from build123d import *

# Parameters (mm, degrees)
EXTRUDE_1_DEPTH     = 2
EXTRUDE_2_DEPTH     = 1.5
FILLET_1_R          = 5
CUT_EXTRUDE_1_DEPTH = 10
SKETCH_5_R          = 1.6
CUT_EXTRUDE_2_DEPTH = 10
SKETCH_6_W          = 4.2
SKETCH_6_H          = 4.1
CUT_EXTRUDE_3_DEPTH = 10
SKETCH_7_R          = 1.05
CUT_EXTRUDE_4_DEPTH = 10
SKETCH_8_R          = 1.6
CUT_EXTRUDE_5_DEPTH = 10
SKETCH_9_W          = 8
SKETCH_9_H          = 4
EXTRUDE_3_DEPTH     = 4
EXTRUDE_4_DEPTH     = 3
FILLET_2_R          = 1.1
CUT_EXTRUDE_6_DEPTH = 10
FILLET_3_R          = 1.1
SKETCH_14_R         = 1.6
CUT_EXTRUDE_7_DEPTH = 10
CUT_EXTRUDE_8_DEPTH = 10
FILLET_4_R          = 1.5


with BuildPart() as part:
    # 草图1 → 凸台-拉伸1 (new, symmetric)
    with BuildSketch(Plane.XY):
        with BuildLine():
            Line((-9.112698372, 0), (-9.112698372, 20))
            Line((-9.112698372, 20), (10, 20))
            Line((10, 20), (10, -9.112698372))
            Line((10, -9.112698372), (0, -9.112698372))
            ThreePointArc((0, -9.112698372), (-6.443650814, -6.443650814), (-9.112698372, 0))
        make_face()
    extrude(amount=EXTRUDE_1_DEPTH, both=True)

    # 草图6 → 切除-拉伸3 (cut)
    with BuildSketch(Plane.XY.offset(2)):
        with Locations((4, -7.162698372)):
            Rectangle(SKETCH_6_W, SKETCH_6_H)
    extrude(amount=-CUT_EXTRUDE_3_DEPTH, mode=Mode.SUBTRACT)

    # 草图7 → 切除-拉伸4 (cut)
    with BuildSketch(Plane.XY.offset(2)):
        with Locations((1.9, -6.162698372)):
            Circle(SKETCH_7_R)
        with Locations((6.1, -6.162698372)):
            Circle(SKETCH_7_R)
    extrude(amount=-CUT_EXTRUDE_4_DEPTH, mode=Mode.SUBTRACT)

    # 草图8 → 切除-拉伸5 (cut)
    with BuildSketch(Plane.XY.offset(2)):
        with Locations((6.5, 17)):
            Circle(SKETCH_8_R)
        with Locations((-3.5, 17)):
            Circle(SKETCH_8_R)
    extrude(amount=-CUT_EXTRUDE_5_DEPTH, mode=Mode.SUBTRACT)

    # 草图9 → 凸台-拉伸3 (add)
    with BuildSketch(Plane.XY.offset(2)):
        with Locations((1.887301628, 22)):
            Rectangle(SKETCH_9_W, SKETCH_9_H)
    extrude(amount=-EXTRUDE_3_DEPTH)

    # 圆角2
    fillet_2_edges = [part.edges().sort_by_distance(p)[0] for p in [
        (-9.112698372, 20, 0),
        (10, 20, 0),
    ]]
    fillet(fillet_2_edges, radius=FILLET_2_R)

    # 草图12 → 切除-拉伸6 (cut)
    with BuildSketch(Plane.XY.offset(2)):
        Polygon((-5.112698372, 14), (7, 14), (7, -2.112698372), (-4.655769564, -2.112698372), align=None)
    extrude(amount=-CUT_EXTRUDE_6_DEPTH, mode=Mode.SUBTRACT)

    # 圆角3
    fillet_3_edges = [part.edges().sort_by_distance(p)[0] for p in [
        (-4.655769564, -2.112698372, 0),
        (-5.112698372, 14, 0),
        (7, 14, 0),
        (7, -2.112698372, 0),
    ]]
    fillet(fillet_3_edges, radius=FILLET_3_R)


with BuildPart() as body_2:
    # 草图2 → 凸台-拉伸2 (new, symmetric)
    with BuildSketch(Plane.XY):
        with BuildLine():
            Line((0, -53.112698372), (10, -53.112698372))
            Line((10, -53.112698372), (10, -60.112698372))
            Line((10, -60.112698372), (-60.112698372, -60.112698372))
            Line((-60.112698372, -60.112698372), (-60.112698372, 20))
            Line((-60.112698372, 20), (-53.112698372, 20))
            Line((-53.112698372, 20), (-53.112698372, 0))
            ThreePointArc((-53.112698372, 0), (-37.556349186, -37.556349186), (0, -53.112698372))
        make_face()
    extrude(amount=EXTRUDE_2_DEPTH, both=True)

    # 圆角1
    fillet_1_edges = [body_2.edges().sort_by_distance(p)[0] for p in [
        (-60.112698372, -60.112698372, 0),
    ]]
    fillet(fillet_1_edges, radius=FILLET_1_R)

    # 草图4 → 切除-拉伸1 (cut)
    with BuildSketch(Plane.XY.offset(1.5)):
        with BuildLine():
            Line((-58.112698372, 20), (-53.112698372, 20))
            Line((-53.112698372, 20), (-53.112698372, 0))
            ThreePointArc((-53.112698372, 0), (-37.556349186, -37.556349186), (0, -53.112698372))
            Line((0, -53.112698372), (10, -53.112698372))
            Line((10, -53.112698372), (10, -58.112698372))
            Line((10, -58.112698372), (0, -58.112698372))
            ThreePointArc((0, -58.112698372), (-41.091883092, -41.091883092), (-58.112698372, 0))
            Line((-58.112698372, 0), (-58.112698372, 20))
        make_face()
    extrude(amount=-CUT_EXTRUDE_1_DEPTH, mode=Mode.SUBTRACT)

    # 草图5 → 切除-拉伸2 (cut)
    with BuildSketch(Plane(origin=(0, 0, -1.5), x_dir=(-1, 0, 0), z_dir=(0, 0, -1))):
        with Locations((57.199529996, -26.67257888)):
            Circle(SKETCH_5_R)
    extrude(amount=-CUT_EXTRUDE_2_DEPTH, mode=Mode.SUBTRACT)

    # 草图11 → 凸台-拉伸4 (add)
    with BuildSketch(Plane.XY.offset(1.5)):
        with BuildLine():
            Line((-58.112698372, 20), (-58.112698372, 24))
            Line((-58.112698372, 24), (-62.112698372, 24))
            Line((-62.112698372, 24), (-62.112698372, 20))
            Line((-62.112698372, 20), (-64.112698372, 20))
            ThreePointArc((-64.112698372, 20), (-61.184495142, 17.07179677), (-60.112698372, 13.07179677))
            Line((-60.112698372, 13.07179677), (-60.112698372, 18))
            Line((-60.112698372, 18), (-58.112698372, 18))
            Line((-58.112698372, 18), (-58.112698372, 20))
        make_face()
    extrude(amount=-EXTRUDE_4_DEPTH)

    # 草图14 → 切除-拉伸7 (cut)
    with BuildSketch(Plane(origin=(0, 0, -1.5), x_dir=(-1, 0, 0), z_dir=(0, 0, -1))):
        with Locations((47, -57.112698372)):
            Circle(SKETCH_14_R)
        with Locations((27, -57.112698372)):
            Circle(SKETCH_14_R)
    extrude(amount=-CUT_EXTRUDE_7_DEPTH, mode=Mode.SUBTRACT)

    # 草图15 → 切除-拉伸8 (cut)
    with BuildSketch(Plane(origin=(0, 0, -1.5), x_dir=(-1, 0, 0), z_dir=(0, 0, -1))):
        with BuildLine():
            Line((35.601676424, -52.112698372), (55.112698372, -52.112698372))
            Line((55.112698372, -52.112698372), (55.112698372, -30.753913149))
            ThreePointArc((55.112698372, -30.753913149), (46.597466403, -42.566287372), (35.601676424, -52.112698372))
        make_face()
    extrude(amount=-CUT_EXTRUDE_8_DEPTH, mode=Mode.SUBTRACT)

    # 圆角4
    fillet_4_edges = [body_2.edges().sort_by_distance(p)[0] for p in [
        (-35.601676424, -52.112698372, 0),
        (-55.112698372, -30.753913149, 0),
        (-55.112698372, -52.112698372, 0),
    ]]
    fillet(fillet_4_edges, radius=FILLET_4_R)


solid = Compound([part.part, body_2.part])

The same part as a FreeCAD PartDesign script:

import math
import FreeCAD as App
import Part
import Sketcher

V = App.Vector
Q = App.Units.Quantity


def edges_at(feature, points):
    """Names of the edges that pass closest to the given points."""
    edges = feature.Shape.Edges
    near = lambda p: min(range(len(edges)), key=lambda i: edges[i].distToShape(Part.Vertex(*p))[0])
    return sorted({f"Edge{near(p) + 1}" for p in points})


def add_polygon(sketch, points):
    """Adds a closed chain of lines whose ends are joined by coincident constraints."""
    first, n = sketch.GeometryCount, len(points)
    for a, b in zip(points, points[1:] + points[:1]):
        sketch.addGeometry(Part.LineSegment(App.Vector(*a, 0), App.Vector(*b, 0)), False)
    for i in range(n):
        sketch.addConstraint(Sketcher.Constraint("Coincident", first + i, 2, first + (i + 1) % n, 1))

doc = App.newDocument("Part")
body = doc.addObject("PartDesign::Body", "Body")

sketch1 = body.newObject("Sketcher::SketchObject", "Sketch")
sketch1.AttachmentSupport = (doc.getObject("XY_Plane"), [""])
sketch1.MapMode = "FlatFace"
sketch1.addGeometry([
    Part.LineSegment(V(-9.112698, 20, 0), V(-9.112698, 0, 0)),
    Part.ArcOfCircle(Part.Circle(V(0, 0, 0), V(0, 0, 1), 9.112698), math.radians(180), math.radians(270)),
    Part.LineSegment(V(0, -9.112698, 0), V(10, -9.112698, 0)),
    Part.LineSegment(V(10, -9.112698, 0), V(10, 20, 0)),
    Part.LineSegment(V(10, 20, 0), V(-9.112698, 20, 0)),
], False)
sketch1.addConstraint([
    Sketcher.Constraint("Tangent", 0, 2, 1, 1),
    Sketcher.Constraint("Tangent", 1, 2, 2, 1),
    Sketcher.Constraint("Coincident", 2, 2, 3, 1),
    Sketcher.Constraint("Coincident", 3, 2, 4, 1),
    Sketcher.Constraint("Coincident", 4, 2, 0, 1),
    Sketcher.Constraint("Vertical", 0),
    Sketcher.Constraint("Horizontal", 2),
    Sketcher.Constraint("Vertical", 3),
    Sketcher.Constraint("Horizontal", 4),
    Sketcher.Constraint("Coincident", 1, 3, -1, 1),
    Sketcher.Constraint("DistanceX", 2, 1, 2, 2, Q("10 mm")),
    Sketcher.Constraint("DistanceY", 0, 2, 0, 1, Q("20 mm")),
    Sketcher.Constraint("Radius", 1, Q("9.112698 mm")),
])
pad1 = body.newObject("PartDesign::Pad", "Pad")
pad1.Profile = sketch1
pad1.Length = 4
pad1.Midplane = True

sketch2 = body.newObject("Sketcher::SketchObject", "Sketch001")
sketch2.AttachmentSupport = (doc.getObject("XY_Plane"), [""])
sketch2.MapMode = "FlatFace"
sketch2.AttachmentOffset = App.Placement(V(0, 0, 2), App.Rotation())
add_polygon(sketch2, [(1.9, -5.112698), (1.9, -9.212698), (6.1, -9.212698), (6.1, -5.112698)])
sketch2.addConstraint([
    Sketcher.Constraint("Vertical", 0),
    Sketcher.Constraint("Horizontal", 1),
    Sketcher.Constraint("Vertical", 2),
    Sketcher.Constraint("Horizontal", 3),
    Sketcher.Constraint("DistanceX", 1, 1, 1, 2, Q("4.2 mm")),
    Sketcher.Constraint("DistanceY", 0, 2, 0, 1, Q("4.1 mm")),
    Sketcher.Constraint("DistanceX", -1, 1, 0, 2, Q("1.9 mm")),
    Sketcher.Constraint("DistanceY", 0, 2, -1, 1, Q("9.212698 mm")),
])
pocket1 = body.newObject("PartDesign::Pocket", "Pocket")
pocket1.Profile = sketch2
pocket1.Length = 10

sketch3 = body.newObject("Sketcher::SketchObject", "Sketch002")
sketch3.AttachmentSupport = (doc.getObject("XY_Plane"), [""])
sketch3.MapMode = "FlatFace"
sketch3.AttachmentOffset = App.Placement(V(0, 0, 2), App.Rotation())
sketch3.addGeometry([
    Part.Circle(V(1.9, -6.162698, 0), V(0, 0, 1), 1.05),
    Part.Circle(V(6.1, -6.162698, 0), V(0, 0, 1), 1.05),
], False)
sketch3.addConstraint([
    Sketcher.Constraint("Equal", 0, 1),
    Sketcher.Constraint("Horizontal", 0, 3, 1, 3),
    Sketcher.Constraint("Diameter", 0, Q("2.1 mm")),
    Sketcher.Constraint("DistanceX", -1, 1, 0, 3, Q("1.9 mm")),
    Sketcher.Constraint("DistanceX", -1, 1, 1, 3, Q("6.1 mm")),
    Sketcher.Constraint("DistanceY", 0, 3, -1, 1, Q("6.162698 mm")),
])
pocket2 = body.newObject("PartDesign::Pocket", "Pocket001")
pocket2.Profile = sketch3
pocket2.Length = 10

sketch4 = body.newObject("Sketcher::SketchObject", "Sketch003")
sketch4.AttachmentSupport = (doc.getObject("XY_Plane"), [""])
sketch4.MapMode = "FlatFace"
sketch4.AttachmentOffset = App.Placement(V(0, 0, 2), App.Rotation())
sketch4.addGeometry([
    Part.Circle(V(6.5, 17, 0), V(0, 0, 1), 1.6),
    Part.Circle(V(-3.5, 17, 0), V(0, 0, 1), 1.6),
], False)
sketch4.addConstraint([
    Sketcher.Constraint("Equal", 0, 1),
    Sketcher.Constraint("Horizontal", 0, 3, 1, 3),
    Sketcher.Constraint("Diameter", 0, Q("3.2 mm")),
    Sketcher.Constraint("DistanceY", -1, 1, 0, 3, Q("17 mm")),
    Sketcher.Constraint("DistanceX", 1, 3, 0, 3, Q("10 mm")),
    Sketcher.Constraint("DistanceX", -1, 1, 0, 3, Q("6.5 mm")),
])
pocket3 = body.newObject("PartDesign::Pocket", "Pocket002")
pocket3.Profile = sketch4
pocket3.Length = 10

sketch5 = body.newObject("Sketcher::SketchObject", "Sketch004")
sketch5.AttachmentSupport = (doc.getObject("XY_Plane"), [""])
sketch5.MapMode = "FlatFace"
sketch5.AttachmentOffset = App.Placement(V(0, 0, 2), App.Rotation())
add_polygon(sketch5, [(-2.112698, 24), (-2.112698, 20), (5.887302, 20), (5.887302, 24)])
sketch5.addConstraint([
    Sketcher.Constraint("Vertical", 0),
    Sketcher.Constraint("Horizontal", 1),
    Sketcher.Constraint("Vertical", 2),
    Sketcher.Constraint("Horizontal", 3),
    Sketcher.Constraint("DistanceX", 1, 1, 1, 2, Q("8 mm")),
    Sketcher.Constraint("DistanceY", 0, 2, 0, 1, Q("4 mm")),
    Sketcher.Constraint("DistanceY", -1, 1, 0, 2, Q("20 mm")),
    Sketcher.Constraint("DistanceX", 0, 2, -1, 1, Q("2.112698 mm")),
])
pad2 = body.newObject("PartDesign::Pad", "Pad001")
pad2.Profile = sketch5
pad2.Length = 4
pad2.Reversed = True
doc.recompute()

fillet = body.newObject("PartDesign::Fillet", "Fillet")
fillet.Base = (pad2, edges_at(pad2, [(-9.113, 20, 0), (10, 20, 0)]))
fillet.Radius = 1.1

sketch6 = body.newObject("Sketcher::SketchObject", "Sketch005")
sketch6.AttachmentSupport = (doc.getObject("XY_Plane"), [""])
sketch6.MapMode = "FlatFace"
sketch6.AttachmentOffset = App.Placement(V(0, 0, 2), App.Rotation())
add_polygon(sketch6, [(7, 14), (-5.112698, 14), (-4.65577, -2.112698), (7, -2.112698)])
sketch6.addConstraint([
    Sketcher.Constraint("Horizontal", 0),
    Sketcher.Constraint("Horizontal", 2),
    Sketcher.Constraint("Vertical", 3),
    Sketcher.Constraint("DistanceY", -1, 1, 0, 2, Q("14 mm")),
    Sketcher.Constraint("DistanceX", -1, 1, 2, 2, Q("7 mm")),
    Sketcher.Constraint("DistanceX", 0, 2, 0, 1, Q("12.112698 mm")),
    Sketcher.Constraint("DistanceY", 3, 1, 3, 2, Q("16.112698 mm")),
    Sketcher.Constraint("DistanceX", 2, 1, 2, 2, Q("11.65577 mm")),
])
pocket4 = body.newObject("PartDesign::Pocket", "Pocket003")
pocket4.Profile = sketch6
pocket4.Length = 10
doc.recompute()

fillet2 = body.newObject("PartDesign::Fillet", "Fillet001")
fillet2.Base = (pocket4, edges_at(pocket4, [
    (-4.656, -2.113, 0),
    (-5.113, 14, 0),
    (7, 14, 0),
    (7, -2.113, 0),
]))
fillet2.Radius = 1.1
body2 = doc.addObject("PartDesign::Body", "Body001")

sketch7 = body2.newObject("Sketcher::SketchObject", "Sketch006")
sketch7.AttachmentSupport = (doc.getObject("XY_Plane001"), [""])
sketch7.MapMode = "FlatFace"
sketch7.addGeometry([
    Part.LineSegment(V(10, -53.112698, 0), V(0, -53.112698, 0)),
    Part.ArcOfCircle(Part.Circle(V(0, 0, 0), V(0, 0, 1), 53.112698), math.radians(180), math.radians(270)),
    Part.LineSegment(V(-53.112698, 0, 0), V(-53.112698, 20, 0)),
    Part.LineSegment(V(-53.112698, 20, 0), V(-60.112698, 20, 0)),
    Part.LineSegment(V(-60.112698, 20, 0), V(-60.112698, -60.112698, 0)),
    Part.LineSegment(V(-60.112698, -60.112698, 0), V(10, -60.112698, 0)),
    Part.LineSegment(V(10, -60.112698, 0), V(10, -53.112698, 0)),
], False)
sketch7.addConstraint([
    Sketcher.Constraint("Tangent", 0, 2, 1, 2),
    Sketcher.Constraint("Tangent", 1, 1, 2, 1),
    Sketcher.Constraint("Coincident", 2, 2, 3, 1),
    Sketcher.Constraint("Coincident", 3, 2, 4, 1),
    Sketcher.Constraint("Coincident", 4, 2, 5, 1),
    Sketcher.Constraint("Coincident", 5, 2, 6, 1),
    Sketcher.Constraint("Coincident", 6, 2, 0, 1),
    Sketcher.Constraint("Horizontal", 0),
    Sketcher.Constraint("Vertical", 2),
    Sketcher.Constraint("Horizontal", 3),
    Sketcher.Constraint("Vertical", 4),
    Sketcher.Constraint("Horizontal", 5),
    Sketcher.Constraint("Vertical", 6),
    Sketcher.Constraint("Coincident", 1, 3, -1, 1),
    Sketcher.Constraint("Equal", 3, 6),
    Sketcher.Constraint("DistanceX", 0, 2, 0, 1, Q("10 mm")),
    Sketcher.Constraint("DistanceX", 3, 2, 3, 1, Q("7 mm")),
    Sketcher.Constraint("DistanceY", 2, 1, 2, 2, Q("20 mm")),
    Sketcher.Constraint("Radius", 1, Q("53.112698 mm")),
])
pad3 = body2.newObject("PartDesign::Pad", "Pad002")
pad3.Profile = sketch7
pad3.Length = 3
pad3.Midplane = True
doc.recompute()

fillet3 = body2.newObject("PartDesign::Fillet", "Fillet002")
fillet3.Base = (pad3, edges_at(pad3, [(-60.113, -60.113, 0)]))
fillet3.Radius = 5

sketch8 = body2.newObject("Sketcher::SketchObject", "Sketch007")
sketch8.AttachmentSupport = (doc.getObject("XY_Plane001"), [""])
sketch8.MapMode = "FlatFace"
sketch8.AttachmentOffset = App.Placement(V(0, 0, 1.5), App.Rotation())
sketch8.addGeometry([
    Part.LineSegment(V(-53.112698, 20, 0), V(-58.112698, 20, 0)),
    Part.LineSegment(V(-58.112698, 20, 0), V(-58.112698, 0, 0)),
    Part.ArcOfCircle(Part.Circle(V(0, 0, 0), V(0, 0, 1), 58.112698), math.radians(180), math.radians(270)),
    Part.LineSegment(V(0, -58.112698, 0), V(10, -58.112698, 0)),
    Part.LineSegment(V(10, -58.112698, 0), V(10, -53.112698, 0)),
    Part.LineSegment(V(10, -53.112698, 0), V(0, -53.112698, 0)),
    Part.ArcOfCircle(Part.Circle(V(0, 0, 0), V(0, 0, 1), 53.112698), math.radians(180), math.radians(270)),
    Part.LineSegment(V(-53.112698, 0, 0), V(-53.112698, 20, 0)),
], False)
sketch8.addConstraint([
    Sketcher.Constraint("Coincident", 0, 2, 1, 1),
    Sketcher.Constraint("Tangent", 1, 2, 2, 1),
    Sketcher.Constraint("Tangent", 2, 2, 3, 1),
    Sketcher.Constraint("Coincident", 3, 2, 4, 1),
    Sketcher.Constraint("Coincident", 4, 2, 5, 1),
    Sketcher.Constraint("Tangent", 5, 2, 6, 2),
    Sketcher.Constraint("Tangent", 6, 1, 7, 1),
    Sketcher.Constraint("Coincident", 7, 2, 0, 1),
    Sketcher.Constraint("Horizontal", 0),
    Sketcher.Constraint("Vertical", 1),
    Sketcher.Constraint("Horizontal", 3),
    Sketcher.Constraint("Vertical", 4),
    Sketcher.Constraint("Horizontal", 5),
    Sketcher.Constraint("Vertical", 7),
    Sketcher.Constraint("Coincident", 2, 3, -1, 1),
    Sketcher.Constraint("Coincident", 6, 3, -1, 1),
    Sketcher.Constraint("DistanceX", 0, 2, 0, 1, Q("5 mm")),
    Sketcher.Constraint("DistanceX", 3, 1, 3, 2, Q("10 mm")),
    Sketcher.Constraint("DistanceY", 1, 2, 1, 1, Q("20 mm")),
    Sketcher.Constraint("Radius", 2, Q("58.112698 mm")),
])
pocket5 = body2.newObject("PartDesign::Pocket", "Pocket004")
pocket5.Profile = sketch8
pocket5.Length = 10

sketch9 = body2.newObject("Sketcher::SketchObject", "Sketch008")
sketch9.AttachmentSupport = (doc.getObject("XY_Plane001"), [""])
sketch9.MapMode = "FlatFace"
sketch9.AttachmentOffset = App.Placement(V(0, 0, -1.5), App.Rotation())
sketch9.addGeometry(Part.Circle(V(-57.19953, -26.672579, 0), V(0, 0, 1), 1.6), False)
sketch9.addConstraint([
    Sketcher.Constraint("Diameter", 0, Q("3.2 mm")),
    Sketcher.Constraint("DistanceX", 0, 3, -1, 1, Q("57.19953 mm")),
    Sketcher.Constraint("DistanceY", 0, 3, -1, 1, Q("26.672579 mm")),
])
pocket6 = body2.newObject("PartDesign::Pocket", "Pocket005")
pocket6.Profile = sketch9
pocket6.Length = 10
pocket6.Reversed = True

sketch10 = body2.newObject("Sketcher::SketchObject", "Sketch009")
sketch10.AttachmentSupport = (doc.getObject("XY_Plane001"), [""])
sketch10.MapMode = "FlatFace"
sketch10.AttachmentOffset = App.Placement(V(0, 0, 1.5), App.Rotation())
sketch10.addGeometry([
    Part.LineSegment(V(-58.112698, 24, 0), V(-62.112698, 24, 0)),
    Part.LineSegment(V(-62.112698, 24, 0), V(-62.112698, 20, 0)),
    Part.LineSegment(V(-62.112698, 20, 0), V(-64.112698, 20, 0)),
    Part.ArcOfCircle(Part.Circle(V(-68.112698, 13.071797, 0), V(0, 0, 1), 8), math.radians(0), math.radians(60)),
    Part.LineSegment(V(-60.112698, 13.071797, 0), V(-60.112698, 18, 0)),
    Part.LineSegment(V(-60.112698, 18, 0), V(-58.112698, 18, 0)),
    Part.LineSegment(V(-58.112698, 18, 0), V(-58.112698, 24, 0)),
], False)
sketch10.addConstraint([
    Sketcher.Constraint("Coincident", 0, 2, 1, 1),
    Sketcher.Constraint("Coincident", 1, 2, 2, 1),
    Sketcher.Constraint("Coincident", 2, 2, 3, 2),
    Sketcher.Constraint("Tangent", 3, 1, 4, 1),
    Sketcher.Constraint("Coincident", 4, 2, 5, 1),
    Sketcher.Constraint("Coincident", 5, 2, 6, 1),
    Sketcher.Constraint("Coincident", 6, 2, 0, 1),
    Sketcher.Constraint("Horizontal", 0),
    Sketcher.Constraint("Vertical", 1),
    Sketcher.Constraint("Horizontal", 2),
    Sketcher.Constraint("Vertical", 4),
    Sketcher.Constraint("Horizontal", 5),
    Sketcher.Constraint("Vertical", 6),
    Sketcher.Constraint("Equal", 2, 5),
    Sketcher.Constraint("Equal", 0, 1),
    Sketcher.Constraint("Radius", 3, Q("8 mm")),
    Sketcher.Constraint("DistanceX", 0, 2, 0, 1, Q("4 mm")),
    Sketcher.Constraint("DistanceX", 2, 2, 2, 1, Q("2 mm")),
    Sketcher.Constraint("DistanceY", 6, 1, 6, 2, Q("6 mm")),
    Sketcher.Constraint("DistanceY", -1, 1, 0, 2, Q("24 mm")),
    Sketcher.Constraint("DistanceX", 3, 3, -1, 1, Q("68.112698 mm")),
])
pad4 = body2.newObject("PartDesign::Pad", "Pad003")
pad4.Profile = sketch10
pad4.Length = 3
pad4.Reversed = True

sketch11 = body2.newObject("Sketcher::SketchObject", "Sketch010")
sketch11.AttachmentSupport = (doc.getObject("XY_Plane001"), [""])
sketch11.MapMode = "FlatFace"
sketch11.AttachmentOffset = App.Placement(V(0, 0, -1.5), App.Rotation())
sketch11.addGeometry([
    Part.Circle(V(-47, -57.112698, 0), V(0, 0, 1), 1.6),
    Part.Circle(V(-27, -57.112698, 0), V(0, 0, 1), 1.6),
], False)
sketch11.addConstraint([
    Sketcher.Constraint("Equal", 0, 1),
    Sketcher.Constraint("Horizontal", 0, 3, 1, 3),
    Sketcher.Constraint("Diameter", 0, Q("3.2 mm")),
    Sketcher.Constraint("DistanceX", 0, 3, -1, 1, Q("47 mm")),
    Sketcher.Constraint("DistanceX", 1, 3, -1, 1, Q("27 mm")),
    Sketcher.Constraint("DistanceY", 0, 3, -1, 1, Q("57.112698 mm")),
])
pocket7 = body2.newObject("PartDesign::Pocket", "Pocket006")
pocket7.Profile = sketch11
pocket7.Length = 10
pocket7.Reversed = True

sketch12 = body2.newObject("Sketcher::SketchObject", "Sketch011")
sketch12.AttachmentSupport = (doc.getObject("XY_Plane001"), [""])
sketch12.MapMode = "FlatFace"
sketch12.AttachmentOffset = App.Placement(V(0, 0, -1.5), App.Rotation())
sketch12.addGeometry([
    Part.LineSegment(V(-35.601676, -52.112698, 0), V(-55.112698, -52.112698, 0)),
    Part.LineSegment(V(-55.112698, -52.112698, 0), V(-55.112698, -30.753913, 0)),
    Part.ArcOfCircle(Part.Circle(V(0, 0, 0), V(0, 0, 1), 63.112698), math.radians(-150.837668), math.radians(-124.339601)),
], False)
sketch12.addConstraint([
    Sketcher.Constraint("Coincident", 0, 2, 1, 1),
    Sketcher.Constraint("Coincident", 1, 2, 2, 1),
    Sketcher.Constraint("Coincident", 2, 2, 0, 1),
    Sketcher.Constraint("Horizontal", 0),
    Sketcher.Constraint("Vertical", 1),
    Sketcher.Constraint("Coincident", 2, 3, -1, 1),
    Sketcher.Constraint("Radius", 2, Q("63.112698 mm")),
    Sketcher.Constraint("DistanceX", 0, 2, 0, 1, Q("19.511022 mm")),
    Sketcher.Constraint("DistanceX", 0, 2, -1, 1, Q("55.112698 mm")),
])
pocket8 = body2.newObject("PartDesign::Pocket", "Pocket007")
pocket8.Profile = sketch12
pocket8.Length = 10
pocket8.Reversed = True
doc.recompute()

fillet4 = body2.newObject("PartDesign::Fillet", "Fillet003")
fillet4.Base = (pocket8, edges_at(pocket8, [(-35.602, -52.113, 0), (-55.113, -30.754, 0), (-55.113, -52.113, 0)]))
fillet4.Radius = 1.5

doc.recompute()
